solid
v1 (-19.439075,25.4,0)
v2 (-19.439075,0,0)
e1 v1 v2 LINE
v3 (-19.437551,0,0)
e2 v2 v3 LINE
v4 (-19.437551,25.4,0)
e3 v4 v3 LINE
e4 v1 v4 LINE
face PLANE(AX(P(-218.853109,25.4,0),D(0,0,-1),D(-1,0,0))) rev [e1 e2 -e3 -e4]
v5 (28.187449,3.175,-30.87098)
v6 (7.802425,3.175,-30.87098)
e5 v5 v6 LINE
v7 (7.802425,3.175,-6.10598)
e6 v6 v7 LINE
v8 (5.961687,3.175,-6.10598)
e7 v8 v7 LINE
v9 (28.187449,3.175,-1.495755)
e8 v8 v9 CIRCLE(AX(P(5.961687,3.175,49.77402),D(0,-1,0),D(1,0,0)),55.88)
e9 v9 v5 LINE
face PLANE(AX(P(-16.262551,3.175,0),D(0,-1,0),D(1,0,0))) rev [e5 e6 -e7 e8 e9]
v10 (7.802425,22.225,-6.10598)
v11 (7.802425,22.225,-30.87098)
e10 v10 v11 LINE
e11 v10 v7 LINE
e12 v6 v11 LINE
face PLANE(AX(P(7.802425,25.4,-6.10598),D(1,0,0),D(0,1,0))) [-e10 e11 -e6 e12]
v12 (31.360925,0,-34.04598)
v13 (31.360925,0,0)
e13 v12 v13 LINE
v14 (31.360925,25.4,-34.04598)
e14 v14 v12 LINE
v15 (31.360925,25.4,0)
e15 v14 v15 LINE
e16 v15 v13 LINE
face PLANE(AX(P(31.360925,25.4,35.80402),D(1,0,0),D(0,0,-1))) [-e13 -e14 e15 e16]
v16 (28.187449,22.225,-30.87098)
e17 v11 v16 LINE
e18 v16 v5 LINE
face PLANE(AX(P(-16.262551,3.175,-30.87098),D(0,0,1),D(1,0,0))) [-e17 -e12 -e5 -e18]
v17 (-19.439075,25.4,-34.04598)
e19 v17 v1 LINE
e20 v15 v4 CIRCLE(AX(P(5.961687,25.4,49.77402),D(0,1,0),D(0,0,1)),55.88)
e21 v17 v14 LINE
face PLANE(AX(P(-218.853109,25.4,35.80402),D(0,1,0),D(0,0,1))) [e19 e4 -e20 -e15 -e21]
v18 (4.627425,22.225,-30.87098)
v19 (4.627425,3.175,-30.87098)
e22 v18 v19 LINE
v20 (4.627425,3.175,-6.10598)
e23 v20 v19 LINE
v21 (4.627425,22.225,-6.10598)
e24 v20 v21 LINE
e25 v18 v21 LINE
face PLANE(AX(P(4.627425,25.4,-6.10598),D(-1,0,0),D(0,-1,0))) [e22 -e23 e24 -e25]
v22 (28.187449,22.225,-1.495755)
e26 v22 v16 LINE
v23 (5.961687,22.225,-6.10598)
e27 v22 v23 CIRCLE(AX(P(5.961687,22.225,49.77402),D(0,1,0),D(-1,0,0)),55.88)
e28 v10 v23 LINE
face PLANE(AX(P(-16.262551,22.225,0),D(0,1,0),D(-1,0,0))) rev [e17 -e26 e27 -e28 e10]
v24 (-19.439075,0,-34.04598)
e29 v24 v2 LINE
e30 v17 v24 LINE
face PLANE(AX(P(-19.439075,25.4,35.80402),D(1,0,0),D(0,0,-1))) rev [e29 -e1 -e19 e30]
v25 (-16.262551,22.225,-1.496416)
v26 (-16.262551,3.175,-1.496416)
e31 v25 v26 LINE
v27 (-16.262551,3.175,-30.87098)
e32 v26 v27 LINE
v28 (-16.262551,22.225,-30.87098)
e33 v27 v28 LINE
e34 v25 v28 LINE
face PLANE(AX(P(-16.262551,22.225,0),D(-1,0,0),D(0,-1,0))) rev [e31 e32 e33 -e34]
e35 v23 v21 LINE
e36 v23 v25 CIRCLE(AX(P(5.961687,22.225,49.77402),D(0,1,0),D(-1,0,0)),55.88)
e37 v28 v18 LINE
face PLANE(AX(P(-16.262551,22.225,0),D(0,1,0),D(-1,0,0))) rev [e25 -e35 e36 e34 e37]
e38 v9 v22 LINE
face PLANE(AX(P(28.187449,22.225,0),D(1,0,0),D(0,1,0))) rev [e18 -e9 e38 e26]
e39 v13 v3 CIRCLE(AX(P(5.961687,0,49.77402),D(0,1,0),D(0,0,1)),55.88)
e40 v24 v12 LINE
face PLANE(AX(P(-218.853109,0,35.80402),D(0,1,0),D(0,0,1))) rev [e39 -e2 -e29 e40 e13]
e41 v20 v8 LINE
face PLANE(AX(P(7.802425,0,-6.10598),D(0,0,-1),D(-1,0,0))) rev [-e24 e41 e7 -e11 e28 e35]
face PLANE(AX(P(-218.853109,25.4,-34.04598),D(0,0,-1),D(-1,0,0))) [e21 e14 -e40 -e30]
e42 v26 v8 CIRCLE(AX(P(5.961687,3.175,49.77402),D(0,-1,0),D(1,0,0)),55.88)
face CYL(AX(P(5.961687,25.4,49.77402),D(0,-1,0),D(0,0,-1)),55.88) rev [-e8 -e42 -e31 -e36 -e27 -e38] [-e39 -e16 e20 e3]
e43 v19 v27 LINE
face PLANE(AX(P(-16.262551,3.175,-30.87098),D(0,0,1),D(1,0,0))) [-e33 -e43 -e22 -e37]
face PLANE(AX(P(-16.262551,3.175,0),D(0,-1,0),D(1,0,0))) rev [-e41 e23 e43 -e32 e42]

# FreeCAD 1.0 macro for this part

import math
import FreeCAD as App
import Part
import Sketcher
Q = App.Units.Quantity


def add_polygon(sketch, points):
    """Adds a closed chain of lines whose ends are joined by coincident constraints."""
    first, n = sketch.GeometryCount, len(points)
    for a, b in zip(points, points[1:] + points[:1]):
        sketch.addGeometry(Part.LineSegment(App.Vector(*a, 0), App.Vector(*b, 0)), False)
    for i in range(n):
        sketch.addConstraint(Sketcher.Constraint("Coincident", first + i, 2, first + (i + 1) % n, 1))

doc = App.newDocument("Part")
params = doc.addObject("Spreadsheet::Sheet", "Params")
for row, (alias, value) in enumerate([
    ("sketch1_radius", "2.2 in"),
    ("sketch1_width", "2 in"),
    ("pad1_length", "1 in"),
    ("sketch2_width", "1.75 in"),
    ("sketch2_height", "0.75 in"),
    ("sketch3_height", "1 in"),
    ("sketch3_width", "0.125 in"),
    ("pad2_length", "1.1 in"),
], start=1):
    params.set(f"A{row}", alias)
    params.set(f"B{row}", "=" + value)
    params.setAlias(f"B{row}", alias)

body = doc.addObject("PartDesign::Body", "Body")

sketch1 = body.newObject("Sketcher::SketchObject", "Sketch")
sketch1.AttachmentSupport = (doc.getObject("XZ_Plane"), [""])
sketch1.MapMode = "FlatFace"
sketch1.addGeometry(Part.LineSegment(App.Vector(31.3609, -34.046, 0), App.Vector(-19.4391, -34.046, 0)), False)
sketch1.addGeometry(Part.LineSegment(App.Vector(-19.4391, -34.046, 0), App.Vector(-19.4391, 0, 0)), False)
sketch1.addGeometry(Part.LineSegment(App.Vector(-19.4391, 0, 0), App.Vector(-19.4376, 0, 0)), False)
sketch1.addGeometry(Part.ArcOfCircle(Part.Circle(App.Vector(5.9617, 49.774, 0), App.Vector(0, 0, 1), 55.88), math.radians(-117), math.radians(-63)), False)
sketch1.addGeometry(Part.LineSegment(App.Vector(31.3609, 0, 0), App.Vector(31.3609, -34.046, 0)), False)
sketch1.addConstraint(Sketcher.Constraint("Coincident", 0, 2, 1, 1))
sketch1.addConstraint(Sketcher.Constraint("Coincident", 1, 2, 2, 1))
sketch1.addConstraint(Sketcher.Constraint("Coincident", 2, 2, 3, 1))
sketch1.addConstraint(Sketcher.Constraint("Coincident", 3, 2, 4, 1))
sketch1.addConstraint(Sketcher.Constraint("Coincident", 4, 2, 0, 1))
sketch1.addConstraint(Sketcher.Constraint("Horizontal", 0))
sketch1.addConstraint(Sketcher.Constraint("Vertical", 1))
sketch1.addConstraint(Sketcher.Constraint("Horizontal", 2))
sketch1.addConstraint(Sketcher.Constraint("Vertical", 4))
sketch1.addConstraint(Sketcher.Constraint("PointOnObject", 1, 2, -1))
sketch1.addConstraint(Sketcher.Constraint("PointOnObject", 3, 2, -1))
sketch1.addConstraint(Sketcher.Constraint("Radius", 3, Q("2.2 in")))
sketch1.addConstraint(Sketcher.Constraint("DistanceX", 0, 2, 0, 1, Q("2 in")))
sketch1.addConstraint(Sketcher.Constraint("DistanceY", 0, 2, 3, 3, Q("3.3 in")))
sketch1.addConstraint(Sketcher.Constraint("DistanceY", 1, 1, 1, 2, Q("34.04598 mm")))
sketch1.addConstraint(Sketcher.Constraint("DistanceX", 2, 2, -1, 1, Q("19.437551 mm")))
sketch1.setExpression("Constraints[11]", "Params.sketch1_radius")
sketch1.setExpression("Constraints[12]", "Params.sketch1_width")
pad1 = body.newObject("PartDesign::Pad", "Pad")
pad1.Profile = sketch1
pad1.setExpression("Length", "Params.pad1_length")
pad1.Reversed = True

sketch2 = body.newObject("Sketcher::SketchObject", "Sketch001")
sketch2.AttachmentSupport = (doc.getObject("XY_Plane"), [""])
sketch2.MapMode = "FlatFace"
sketch2.AttachmentOffset = App.Placement(App.Vector(0, 0, -30.87098), App.Rotation())
add_polygon(sketch2, [(28, 22), (28, 3), (-16, 3), (-16, 22)])
sketch2.addConstraint(Sketcher.Constraint("Vertical", 0))
sketch2.addConstraint(Sketcher.Constraint("Horizontal", 1))
sketch2.addConstraint(Sketcher.Constraint("Vertical", 2))
sketch2.addConstraint(Sketcher.Constraint("Horizontal", 3))
sketch2.addConstraint(Sketcher.Constraint("DistanceX", 1, 2, 1, 1, Q("1.75 in")))
sketch2.addConstraint(Sketcher.Constraint("DistanceY", 0, 2, 0, 1, Q("0.75 in")))
sketch2.addConstraint(Sketcher.Constraint("DistanceY", -1, 1, 0, 2, Q("0.125 in")))
sketch2.addConstraint(Sketcher.Constraint("DistanceX", -1, 1, 0, 2, Q("28.187449 mm")))
sketch2.setExpression("Constraints[8]", "Params.sketch2_width")
sketch2.setExpression("Constraints[9]", "Params.sketch2_height")
pocket1 = body.newObject("PartDesign::Pocket", "Pocket")
pocket1.Profile = sketch2
pocket1.Type = "ThroughAll"
pocket1.Reversed = True

sketch3 = body.newObject("Sketcher::SketchObject", "Sketch002")
sketch3.AttachmentSupport = (doc.getObject("XY_Plane"), [""])
sketch3.MapMode = "FlatFace"
sketch3.AttachmentOffset = App.Placement(App.Vector(0, 0, -34.04598), App.Rotation())
add_polygon(sketch3, [(7.8, 25.4), (7.8, 0), (4.6, 0), (4.6, 25.4)])
sketch3.addConstraint(Sketcher.Constraint("Vertical", 0))
sketch3.addConstraint(Sketcher.Constraint("Horizontal", 1))
sketch3.addConstraint(Sketcher.Constraint("Vertical", 2))
sketch3.addConstraint(Sketcher.Constraint("Horizontal", 3))
sketch3.addConstraint(Sketcher.Constraint("PointOnObject", 0, 2, -1))
sketch3.addConstraint(Sketcher.Constraint("DistanceY", 0, 2, 0, 1, Q("1 in")))
sketch3.addConstraint(Sketcher.Constraint("DistanceX", 1, 2, 1, 1, Q("0.125 in")))
sketch3.addConstraint(Sketcher.Constraint("DistanceX", -1, 1, 0, 2, Q("7.802425 mm")))
sketch3.setExpression("Constraints[9]", "Params.sketch3_height")
sketch3.setExpression("Constraints[10]", "Params.sketch3_width")
pad2 = body.newObject("PartDesign::Pad", "Pad001")
pad2.Profile = sketch3
pad2.setExpression("Length", "Params.pad2_length")

doc.recompute()
